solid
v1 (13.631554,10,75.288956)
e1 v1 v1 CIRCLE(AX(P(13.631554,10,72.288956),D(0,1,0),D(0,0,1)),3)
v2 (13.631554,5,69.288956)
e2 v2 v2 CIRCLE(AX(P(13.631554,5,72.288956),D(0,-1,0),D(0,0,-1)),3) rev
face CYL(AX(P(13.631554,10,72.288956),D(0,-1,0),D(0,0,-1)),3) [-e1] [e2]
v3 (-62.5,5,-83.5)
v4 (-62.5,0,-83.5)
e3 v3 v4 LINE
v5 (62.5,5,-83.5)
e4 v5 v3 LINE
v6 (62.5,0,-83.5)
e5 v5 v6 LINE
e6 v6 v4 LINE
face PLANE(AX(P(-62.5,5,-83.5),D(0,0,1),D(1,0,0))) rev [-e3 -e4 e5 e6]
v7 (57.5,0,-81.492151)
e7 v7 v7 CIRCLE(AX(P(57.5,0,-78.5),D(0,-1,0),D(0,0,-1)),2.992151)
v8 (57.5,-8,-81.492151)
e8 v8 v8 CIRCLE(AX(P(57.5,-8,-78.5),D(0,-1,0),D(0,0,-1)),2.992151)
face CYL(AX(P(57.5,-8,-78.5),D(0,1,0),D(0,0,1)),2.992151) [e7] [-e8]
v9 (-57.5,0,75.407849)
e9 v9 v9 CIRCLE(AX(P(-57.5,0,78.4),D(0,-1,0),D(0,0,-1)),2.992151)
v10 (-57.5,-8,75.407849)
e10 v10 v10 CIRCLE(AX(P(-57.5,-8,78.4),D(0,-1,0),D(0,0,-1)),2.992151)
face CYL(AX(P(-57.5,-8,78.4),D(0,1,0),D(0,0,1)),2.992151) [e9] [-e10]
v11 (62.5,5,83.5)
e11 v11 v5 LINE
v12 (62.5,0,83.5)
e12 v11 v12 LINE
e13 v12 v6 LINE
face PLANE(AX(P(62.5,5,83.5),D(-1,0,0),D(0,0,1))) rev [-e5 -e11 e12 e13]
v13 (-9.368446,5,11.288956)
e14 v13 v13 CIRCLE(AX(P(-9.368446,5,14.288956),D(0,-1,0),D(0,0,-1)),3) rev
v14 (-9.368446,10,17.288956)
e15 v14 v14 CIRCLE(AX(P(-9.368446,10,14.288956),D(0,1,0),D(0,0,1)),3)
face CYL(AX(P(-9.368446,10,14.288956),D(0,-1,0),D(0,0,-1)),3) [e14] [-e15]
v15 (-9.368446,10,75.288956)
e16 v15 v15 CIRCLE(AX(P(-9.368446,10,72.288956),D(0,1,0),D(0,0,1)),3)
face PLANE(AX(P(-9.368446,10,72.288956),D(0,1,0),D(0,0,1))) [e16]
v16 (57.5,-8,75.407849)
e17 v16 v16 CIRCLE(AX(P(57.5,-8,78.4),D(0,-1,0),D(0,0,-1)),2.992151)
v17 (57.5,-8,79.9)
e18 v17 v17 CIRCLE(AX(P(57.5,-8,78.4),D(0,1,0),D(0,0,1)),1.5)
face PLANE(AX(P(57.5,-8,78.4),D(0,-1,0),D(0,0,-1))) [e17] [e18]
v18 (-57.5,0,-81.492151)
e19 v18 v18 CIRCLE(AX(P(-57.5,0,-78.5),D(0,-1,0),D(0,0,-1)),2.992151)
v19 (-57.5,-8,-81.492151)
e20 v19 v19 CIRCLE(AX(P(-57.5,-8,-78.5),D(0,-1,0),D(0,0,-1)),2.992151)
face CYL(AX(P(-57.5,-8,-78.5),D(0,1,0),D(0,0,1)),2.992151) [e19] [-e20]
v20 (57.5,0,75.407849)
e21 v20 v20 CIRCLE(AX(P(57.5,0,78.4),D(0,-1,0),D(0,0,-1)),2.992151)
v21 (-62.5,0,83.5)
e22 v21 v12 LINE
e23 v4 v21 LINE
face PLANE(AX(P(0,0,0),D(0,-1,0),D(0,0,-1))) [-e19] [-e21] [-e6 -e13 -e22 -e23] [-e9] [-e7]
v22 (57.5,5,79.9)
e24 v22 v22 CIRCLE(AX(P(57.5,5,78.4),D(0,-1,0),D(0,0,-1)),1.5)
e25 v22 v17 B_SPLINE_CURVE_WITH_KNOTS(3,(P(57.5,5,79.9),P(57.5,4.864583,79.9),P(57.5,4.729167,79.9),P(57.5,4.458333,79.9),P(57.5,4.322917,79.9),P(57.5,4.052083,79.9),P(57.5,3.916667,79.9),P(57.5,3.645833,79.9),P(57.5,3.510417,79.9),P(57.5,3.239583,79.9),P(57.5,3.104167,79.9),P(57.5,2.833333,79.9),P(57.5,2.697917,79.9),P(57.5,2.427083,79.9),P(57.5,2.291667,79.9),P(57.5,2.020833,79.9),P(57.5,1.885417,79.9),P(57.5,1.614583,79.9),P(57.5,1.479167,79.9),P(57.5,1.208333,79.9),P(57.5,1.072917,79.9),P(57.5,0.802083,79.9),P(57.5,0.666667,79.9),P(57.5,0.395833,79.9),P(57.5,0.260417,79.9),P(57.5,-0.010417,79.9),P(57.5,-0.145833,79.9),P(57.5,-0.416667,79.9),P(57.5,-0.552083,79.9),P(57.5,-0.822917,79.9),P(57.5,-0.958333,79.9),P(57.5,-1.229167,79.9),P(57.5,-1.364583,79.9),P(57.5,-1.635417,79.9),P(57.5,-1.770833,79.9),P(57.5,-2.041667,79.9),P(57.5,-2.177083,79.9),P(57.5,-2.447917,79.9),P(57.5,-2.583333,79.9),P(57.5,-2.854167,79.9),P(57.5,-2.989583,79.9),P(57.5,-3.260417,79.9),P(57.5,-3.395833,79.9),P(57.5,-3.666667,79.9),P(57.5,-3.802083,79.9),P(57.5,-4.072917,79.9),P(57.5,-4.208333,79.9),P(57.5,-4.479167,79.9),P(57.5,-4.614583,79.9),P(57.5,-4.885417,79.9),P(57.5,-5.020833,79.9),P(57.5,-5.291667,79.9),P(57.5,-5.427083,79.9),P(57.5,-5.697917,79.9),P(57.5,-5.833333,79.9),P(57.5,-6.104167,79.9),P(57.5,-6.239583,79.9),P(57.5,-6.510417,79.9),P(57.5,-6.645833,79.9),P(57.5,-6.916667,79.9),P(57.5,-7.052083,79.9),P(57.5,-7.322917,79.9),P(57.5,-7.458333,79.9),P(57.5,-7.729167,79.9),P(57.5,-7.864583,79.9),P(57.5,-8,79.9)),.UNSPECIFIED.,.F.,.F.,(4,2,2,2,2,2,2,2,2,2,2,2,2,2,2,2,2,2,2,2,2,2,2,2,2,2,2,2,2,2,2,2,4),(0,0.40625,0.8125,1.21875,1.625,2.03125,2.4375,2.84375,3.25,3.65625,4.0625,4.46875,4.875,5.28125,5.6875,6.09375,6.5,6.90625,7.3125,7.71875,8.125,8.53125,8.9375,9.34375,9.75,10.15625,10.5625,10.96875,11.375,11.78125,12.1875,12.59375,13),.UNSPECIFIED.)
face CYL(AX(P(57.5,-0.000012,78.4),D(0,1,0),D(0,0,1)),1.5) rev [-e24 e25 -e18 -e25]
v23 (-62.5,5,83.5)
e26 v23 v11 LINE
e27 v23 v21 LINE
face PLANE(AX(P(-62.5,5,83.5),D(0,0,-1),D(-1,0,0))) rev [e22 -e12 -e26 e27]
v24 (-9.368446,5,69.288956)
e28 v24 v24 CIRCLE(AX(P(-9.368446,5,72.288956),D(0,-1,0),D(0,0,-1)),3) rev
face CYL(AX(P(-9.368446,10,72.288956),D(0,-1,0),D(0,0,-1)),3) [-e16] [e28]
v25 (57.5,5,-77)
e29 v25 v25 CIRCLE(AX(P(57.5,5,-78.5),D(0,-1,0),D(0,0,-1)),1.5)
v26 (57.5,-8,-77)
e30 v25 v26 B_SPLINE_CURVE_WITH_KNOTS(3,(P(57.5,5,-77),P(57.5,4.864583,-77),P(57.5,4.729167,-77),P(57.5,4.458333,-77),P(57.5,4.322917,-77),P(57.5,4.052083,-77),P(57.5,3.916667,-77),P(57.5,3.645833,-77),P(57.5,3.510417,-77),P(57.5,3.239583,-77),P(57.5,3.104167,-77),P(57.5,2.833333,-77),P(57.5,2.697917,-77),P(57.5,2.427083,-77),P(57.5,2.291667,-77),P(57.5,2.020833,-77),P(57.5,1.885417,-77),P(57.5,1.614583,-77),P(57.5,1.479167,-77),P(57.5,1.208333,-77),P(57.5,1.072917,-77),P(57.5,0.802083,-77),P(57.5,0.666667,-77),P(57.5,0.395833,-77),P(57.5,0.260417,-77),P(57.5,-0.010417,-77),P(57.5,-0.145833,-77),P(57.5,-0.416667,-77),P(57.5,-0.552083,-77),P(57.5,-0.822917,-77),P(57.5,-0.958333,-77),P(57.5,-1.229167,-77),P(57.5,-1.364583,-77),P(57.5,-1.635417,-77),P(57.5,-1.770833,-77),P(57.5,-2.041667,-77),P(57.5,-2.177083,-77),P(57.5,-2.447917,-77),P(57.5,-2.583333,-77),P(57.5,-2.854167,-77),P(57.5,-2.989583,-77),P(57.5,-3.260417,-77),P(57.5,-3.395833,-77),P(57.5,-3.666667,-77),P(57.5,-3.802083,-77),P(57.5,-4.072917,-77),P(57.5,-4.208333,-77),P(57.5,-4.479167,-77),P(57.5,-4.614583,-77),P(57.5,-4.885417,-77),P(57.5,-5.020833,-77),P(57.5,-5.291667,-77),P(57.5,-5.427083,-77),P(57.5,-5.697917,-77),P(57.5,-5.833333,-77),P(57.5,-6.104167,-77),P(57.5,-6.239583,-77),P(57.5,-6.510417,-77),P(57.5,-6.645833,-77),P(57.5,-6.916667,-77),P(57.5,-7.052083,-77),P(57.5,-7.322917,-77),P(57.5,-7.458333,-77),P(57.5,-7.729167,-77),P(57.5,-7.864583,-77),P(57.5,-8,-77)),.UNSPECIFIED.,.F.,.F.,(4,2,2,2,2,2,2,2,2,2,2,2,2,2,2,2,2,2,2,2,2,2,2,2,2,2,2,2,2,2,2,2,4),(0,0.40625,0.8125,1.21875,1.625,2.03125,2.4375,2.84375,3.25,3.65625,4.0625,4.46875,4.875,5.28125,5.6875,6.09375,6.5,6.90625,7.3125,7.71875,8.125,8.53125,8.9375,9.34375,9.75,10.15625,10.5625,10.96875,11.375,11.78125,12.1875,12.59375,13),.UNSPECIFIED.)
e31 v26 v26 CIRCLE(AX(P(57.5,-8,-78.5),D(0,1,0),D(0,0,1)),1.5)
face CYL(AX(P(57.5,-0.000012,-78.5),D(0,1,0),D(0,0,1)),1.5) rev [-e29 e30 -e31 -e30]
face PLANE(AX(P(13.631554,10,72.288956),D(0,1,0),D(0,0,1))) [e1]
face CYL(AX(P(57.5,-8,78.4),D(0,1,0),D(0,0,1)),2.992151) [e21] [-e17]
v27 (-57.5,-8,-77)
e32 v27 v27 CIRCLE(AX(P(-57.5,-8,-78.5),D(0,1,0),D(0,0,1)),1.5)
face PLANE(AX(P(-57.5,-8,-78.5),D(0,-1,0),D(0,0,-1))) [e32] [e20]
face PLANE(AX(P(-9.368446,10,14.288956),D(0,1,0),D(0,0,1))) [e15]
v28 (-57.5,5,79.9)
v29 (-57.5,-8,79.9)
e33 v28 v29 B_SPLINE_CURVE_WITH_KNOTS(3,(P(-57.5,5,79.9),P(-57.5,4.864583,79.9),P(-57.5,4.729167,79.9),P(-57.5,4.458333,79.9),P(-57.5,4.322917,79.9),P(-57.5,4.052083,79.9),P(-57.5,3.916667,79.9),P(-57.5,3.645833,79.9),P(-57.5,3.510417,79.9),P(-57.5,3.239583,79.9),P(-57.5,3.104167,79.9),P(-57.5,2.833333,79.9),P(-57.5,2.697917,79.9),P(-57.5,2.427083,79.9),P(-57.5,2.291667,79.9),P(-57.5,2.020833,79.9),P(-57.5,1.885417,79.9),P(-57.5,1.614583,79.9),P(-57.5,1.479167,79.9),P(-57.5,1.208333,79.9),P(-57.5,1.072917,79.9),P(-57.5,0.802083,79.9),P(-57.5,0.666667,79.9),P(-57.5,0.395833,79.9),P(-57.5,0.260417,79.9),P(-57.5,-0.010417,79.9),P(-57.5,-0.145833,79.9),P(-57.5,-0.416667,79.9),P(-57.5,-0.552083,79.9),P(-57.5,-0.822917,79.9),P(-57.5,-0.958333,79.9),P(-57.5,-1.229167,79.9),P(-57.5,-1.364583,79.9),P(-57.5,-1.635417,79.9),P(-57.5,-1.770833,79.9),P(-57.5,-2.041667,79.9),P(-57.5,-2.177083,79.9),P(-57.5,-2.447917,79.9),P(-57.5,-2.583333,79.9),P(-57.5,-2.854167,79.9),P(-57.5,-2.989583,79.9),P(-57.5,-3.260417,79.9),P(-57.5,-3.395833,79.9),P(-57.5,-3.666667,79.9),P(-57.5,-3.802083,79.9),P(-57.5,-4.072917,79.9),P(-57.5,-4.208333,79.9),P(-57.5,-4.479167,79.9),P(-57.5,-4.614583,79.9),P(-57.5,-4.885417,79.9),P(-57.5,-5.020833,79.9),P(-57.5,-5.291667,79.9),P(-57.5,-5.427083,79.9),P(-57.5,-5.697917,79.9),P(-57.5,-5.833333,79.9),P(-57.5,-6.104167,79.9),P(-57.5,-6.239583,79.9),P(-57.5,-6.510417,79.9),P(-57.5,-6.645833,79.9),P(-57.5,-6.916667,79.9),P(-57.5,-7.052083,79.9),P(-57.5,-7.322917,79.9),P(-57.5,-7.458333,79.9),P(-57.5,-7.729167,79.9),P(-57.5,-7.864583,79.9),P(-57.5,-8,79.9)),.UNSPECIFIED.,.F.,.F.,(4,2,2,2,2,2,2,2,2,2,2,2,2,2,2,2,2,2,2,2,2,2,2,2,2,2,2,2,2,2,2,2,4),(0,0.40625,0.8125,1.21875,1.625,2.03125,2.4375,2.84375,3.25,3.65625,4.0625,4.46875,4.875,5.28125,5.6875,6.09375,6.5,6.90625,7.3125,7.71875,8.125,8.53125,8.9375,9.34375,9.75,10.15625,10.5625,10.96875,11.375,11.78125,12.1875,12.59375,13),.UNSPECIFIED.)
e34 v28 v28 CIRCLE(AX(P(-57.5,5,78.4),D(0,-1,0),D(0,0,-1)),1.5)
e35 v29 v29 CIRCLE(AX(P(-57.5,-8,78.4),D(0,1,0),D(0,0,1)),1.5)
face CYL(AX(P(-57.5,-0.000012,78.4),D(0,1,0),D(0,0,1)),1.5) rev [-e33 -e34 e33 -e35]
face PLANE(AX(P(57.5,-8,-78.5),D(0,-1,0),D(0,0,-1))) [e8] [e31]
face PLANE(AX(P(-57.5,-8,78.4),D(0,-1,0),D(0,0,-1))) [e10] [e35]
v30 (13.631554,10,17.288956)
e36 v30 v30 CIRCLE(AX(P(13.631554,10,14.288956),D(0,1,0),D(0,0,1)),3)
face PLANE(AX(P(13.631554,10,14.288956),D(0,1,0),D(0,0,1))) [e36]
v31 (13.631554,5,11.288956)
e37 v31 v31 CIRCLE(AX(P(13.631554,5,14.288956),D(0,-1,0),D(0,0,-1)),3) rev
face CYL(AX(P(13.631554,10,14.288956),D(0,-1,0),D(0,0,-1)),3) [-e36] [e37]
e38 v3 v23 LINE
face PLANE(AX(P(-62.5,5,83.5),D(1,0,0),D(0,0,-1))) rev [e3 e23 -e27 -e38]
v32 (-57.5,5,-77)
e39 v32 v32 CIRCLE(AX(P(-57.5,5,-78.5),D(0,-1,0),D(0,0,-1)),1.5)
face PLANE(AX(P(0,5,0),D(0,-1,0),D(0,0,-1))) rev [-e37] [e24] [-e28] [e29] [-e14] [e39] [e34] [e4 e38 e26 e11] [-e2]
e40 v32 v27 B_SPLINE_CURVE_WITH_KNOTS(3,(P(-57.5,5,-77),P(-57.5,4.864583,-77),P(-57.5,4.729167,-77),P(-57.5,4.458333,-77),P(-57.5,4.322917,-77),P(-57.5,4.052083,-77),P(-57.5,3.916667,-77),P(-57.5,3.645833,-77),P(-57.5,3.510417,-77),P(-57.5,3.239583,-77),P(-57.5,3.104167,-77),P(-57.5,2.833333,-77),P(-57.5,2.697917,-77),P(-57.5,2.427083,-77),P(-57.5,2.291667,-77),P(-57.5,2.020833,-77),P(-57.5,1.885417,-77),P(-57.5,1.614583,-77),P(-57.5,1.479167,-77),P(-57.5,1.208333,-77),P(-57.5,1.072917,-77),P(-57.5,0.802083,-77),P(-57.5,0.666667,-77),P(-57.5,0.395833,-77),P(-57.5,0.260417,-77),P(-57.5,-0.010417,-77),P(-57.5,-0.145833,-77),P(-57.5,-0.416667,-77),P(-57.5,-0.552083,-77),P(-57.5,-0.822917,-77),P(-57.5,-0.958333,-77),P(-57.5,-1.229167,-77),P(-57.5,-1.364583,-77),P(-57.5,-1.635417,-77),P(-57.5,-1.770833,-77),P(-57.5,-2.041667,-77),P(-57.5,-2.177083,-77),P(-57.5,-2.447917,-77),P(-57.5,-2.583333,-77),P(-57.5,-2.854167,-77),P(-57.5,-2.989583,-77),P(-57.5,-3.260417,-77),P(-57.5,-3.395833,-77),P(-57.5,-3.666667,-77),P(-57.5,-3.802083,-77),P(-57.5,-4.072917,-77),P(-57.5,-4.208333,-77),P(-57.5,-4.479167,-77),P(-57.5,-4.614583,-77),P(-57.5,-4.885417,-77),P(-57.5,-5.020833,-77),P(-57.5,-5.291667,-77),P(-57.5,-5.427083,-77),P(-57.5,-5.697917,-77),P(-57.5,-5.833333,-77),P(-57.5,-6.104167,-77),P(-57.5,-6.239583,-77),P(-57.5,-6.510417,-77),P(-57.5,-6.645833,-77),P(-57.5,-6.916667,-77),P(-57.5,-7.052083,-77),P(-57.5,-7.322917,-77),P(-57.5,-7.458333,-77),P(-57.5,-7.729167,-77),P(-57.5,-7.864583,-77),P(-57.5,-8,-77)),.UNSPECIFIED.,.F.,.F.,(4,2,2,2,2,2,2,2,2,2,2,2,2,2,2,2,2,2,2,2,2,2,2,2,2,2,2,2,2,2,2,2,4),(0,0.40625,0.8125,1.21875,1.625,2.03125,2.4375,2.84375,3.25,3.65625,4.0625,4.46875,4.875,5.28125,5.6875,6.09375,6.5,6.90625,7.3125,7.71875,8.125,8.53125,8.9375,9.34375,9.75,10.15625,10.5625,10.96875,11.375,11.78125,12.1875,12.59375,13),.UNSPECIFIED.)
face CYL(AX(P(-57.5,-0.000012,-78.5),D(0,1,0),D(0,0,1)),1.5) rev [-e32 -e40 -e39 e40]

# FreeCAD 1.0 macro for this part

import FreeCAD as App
import Part
import Sketcher
Q = App.Units.Quantity

doc = App.newDocument("Part")
params = doc.addObject("Spreadsheet::Sheet", "Params")
for row, (alias, value) in enumerate([
    ("sketch1_width", "125 mm"),
    ("sketch1_height", "167 mm"),
    ("pad1_length", "5 mm"),
    ("sketch2_diameter", "3 mm"),
    ("pad2_length", "8 mm"),
    ("sketch4_diameter", "3 mm"),
    ("sketch5_diameter", "6 mm"),
    ("pad3_length", "5 mm"),
], start=1):
    params.set(f"A{row}", alias)
    params.set(f"B{row}", "=" + value)
    params.setAlias(f"B{row}", alias)

body = doc.addObject("PartDesign::Body", "Body")

sketch1 = body.newObject("Sketcher::SketchObject", "Sketch")
sketch1.AttachmentSupport = (doc.getObject("XZ_Plane"), [""])
sketch1.MapMode = "FlatFace"
sketch1.addGeometry(Part.LineSegment(App.Vector(-62, -84, 0), App.Vector(-62, 84, 0)), False)
sketch1.addGeometry(Part.LineSegment(App.Vector(-62, 84, 0), App.Vector(62, 84, 0)), False)
sketch1.addGeometry(Part.LineSegment(App.Vector(62, 84, 0), App.Vector(62, -84, 0)), False)
sketch1.addGeometry(Part.LineSegment(App.Vector(62, -84, 0), App.Vector(-62, -84, 0)), False)
sketch1.addConstraint(Sketcher.Constraint("Coincident", 0, 2, 1, 1))
sketch1.addConstraint(Sketcher.Constraint("Coincident", 1, 2, 2, 1))
sketch1.addConstraint(Sketcher.Constraint("Coincident", 2, 2, 3, 1))
sketch1.addConstraint(Sketcher.Constraint("Coincident", 3, 2, 0, 1))
sketch1.addConstraint(Sketcher.Constraint("Vertical", 0))
sketch1.addConstraint(Sketcher.Constraint("Horizontal", 1))
sketch1.addConstraint(Sketcher.Constraint("Vertical", 2))
sketch1.addConstraint(Sketcher.Constraint("Horizontal", 3))
sketch1.addConstraint(Sketcher.Constraint("Symmetric", 0, 2, 2, 2, -1, 1))
sketch1.addConstraint(Sketcher.Constraint("DistanceX", 1, 1, 1, 2, Q("125 mm")))
sketch1.addConstraint(Sketcher.Constraint("DistanceY", 0, 1, 0, 2, Q("167 mm")))
sketch1.setExpression("Constraints[9]", "Params.sketch1_width")
sketch1.setExpression("Constraints[10]", "Params.sketch1_height")
pad1 = body.newObject("PartDesign::Pad", "Pad")
pad1.Profile = sketch1
pad1.setExpression("Length", "Params.pad1_length")
pad1.Reversed = True

sketch2 = body.newObject("Sketcher::SketchObject", "Sketch001")
sketch2.AttachmentSupport = (doc.getObject("XZ_Plane"), [""])
sketch2.MapMode = "FlatFace"
sketch2.addGeometry(Part.Circle(App.Vector(-57.5, 78.4, 0), App.Vector(0, 0, 1), 1.5), False)
sketch2.addGeometry(Part.Circle(App.Vector(57.5, 78.4, 0), App.Vector(0, 0, 1), 1.5), False)
sketch2.addGeometry(Part.Circle(App.Vector(57.5, -78.5, 0), App.Vector(0, 0, 1), 1.5), False)
sketch2.addGeometry(Part.Circle(App.Vector(-57.5, -78.5, 0), App.Vector(0, 0, 1), 1.5), False)
sketch2.addConstraint(Sketcher.Constraint("Equal", 0, 1))
sketch2.addConstraint(Sketcher.Constraint("Equal", 1, 2))
sketch2.addConstraint(Sketcher.Constraint("Equal", 2, 3))
sketch2.addConstraint(Sketcher.Constraint("Symmetric", 0, 3, 1, 3, -2))
sketch2.addConstraint(Sketcher.Constraint("Symmetric", 2, 3, 3, 3, -2))
sketch2.addConstraint(Sketcher.Constraint("Vertical", 1, 3, 2, 3))
sketch2.addConstraint(Sketcher.Constraint("Diameter", 0, Q("3 mm")))
sketch2.addConstraint(Sketcher.Constraint("DistanceX", 0, 3, 1, 3, Q("115 mm")))
sketch2.addConstraint(Sketcher.Constraint("DistanceY", -1, 1, 0, 3, Q("78.4 mm")))
sketch2.addConstraint(Sketcher.Constraint("DistanceY", 2, 3, -1, 1, Q("78.5 mm")))
sketch2.setExpression("Constraints[6]", "Params.sketch2_diameter")
pocket1 = body.newObject("PartDesign::Pocket", "Pocket")
pocket1.Profile = sketch2
pocket1.Type = "ThroughAll"
pocket1.Midplane = True

sketch3 = body.newObject("Sketcher::SketchObject", "Sketch002")
sketch3.AttachmentSupport = (doc.getObject("XZ_Plane"), [""])
sketch3.MapMode = "FlatFace"
sketch3.addGeometry(Part.Circle(App.Vector(-57.5, 78.4, 0), App.Vector(0, 0, 1), 3), False)
sketch3.addGeometry(Part.Circle(App.Vector(57.5, 78.4, 0), App.Vector(0, 0, 1), 3), False)
sketch3.addGeometry(Part.Circle(App.Vector(57.5, -78.5, 0), App.Vector(0, 0, 1), 3), False)
sketch3.addGeometry(Part.Circle(App.Vector(-57.5, -78.5, 0), App.Vector(0, 0, 1), 3), False)
sketch3.addConstraint(Sketcher.Constraint("Equal", 0, 1))
sketch3.addConstraint(Sketcher.Constraint("Equal", 1, 2))
sketch3.addConstraint(Sketcher.Constraint("Equal", 2, 3))
sketch3.addConstraint(Sketcher.Constraint("Symmetric", 0, 3, 1, 3, -2))
sketch3.addConstraint(Sketcher.Constraint("Symmetric", 2, 3, 3, 3, -2))
sketch3.addConstraint(Sketcher.Constraint("Vertical", 1, 3, 2, 3))
sketch3.addConstraint(Sketcher.Constraint("DistanceX", 0, 3, 1, 3, Q("115 mm")))
sketch3.addConstraint(Sketcher.Constraint("DistanceY", -1, 1, 0, 3, Q("78.4 mm")))
sketch3.addConstraint(Sketcher.Constraint("DistanceY", 2, 3, -1, 1, Q("78.5 mm")))
sketch3.addConstraint(Sketcher.Constraint("Diameter", 0, Q("5.984303 mm")))
pad2 = body.newObject("PartDesign::Pad", "Pad001")
pad2.Profile = sketch3
pad2.setExpression("Length", "Params.pad2_length")

sketch4 = body.newObject("Sketcher::SketchObject", "Sketch003")
sketch4.AttachmentSupport = (doc.getObject("XZ_Plane"), [""])
sketch4.MapMode = "FlatFace"
sketch4.AttachmentOffset = App.Placement(App.Vector(0, 0, -5), App.Rotation())
sketch4.addGeometry(Part.Circle(App.Vector(-57.5, -78.5, 0), App.Vector(0, 0, 1), 1.5), False)
sketch4.addGeometry(Part.Circle(App.Vector(57.5, -78.5, 0), App.Vector(0, 0, 1), 1.5), False)
sketch4.addGeometry(Part.Circle(App.Vector(57.5, 78.4, 0), App.Vector(0, 0, 1), 1.5), False)
sketch4.addGeometry(Part.Circle(App.Vector(-57.5, 78.4, 0), App.Vector(0, 0, 1), 1.5), False)
sketch4.addConstraint(Sketcher.Constraint("Equal", 0, 1))
sketch4.addConstraint(Sketcher.Constraint("Equal", 1, 2))
sketch4.addConstraint(Sketcher.Constraint("Equal", 2, 3))
sketch4.addConstraint(Sketcher.Constraint("Symmetric", 0, 3, 1, 3, -2))
sketch4.addConstraint(Sketcher.Constraint("Symmetric", 2, 3, 3, 3, -2))
sketch4.addConstraint(Sketcher.Constraint("Vertical", 1, 3, 2, 3))
sketch4.addConstraint(Sketcher.Constraint("Diameter", 0, Q("3 mm")))
sketch4.addConstraint(Sketcher.Constraint("DistanceX", 0, 3, 1, 3, Q("115 mm")))
sketch4.addConstraint(Sketcher.Constraint("DistanceY", 0, 3, -1, 1, Q("78.5 mm")))
sketch4.addConstraint(Sketcher.Constraint("DistanceY", -1, 1, 2, 3, Q("78.4 mm")))
sketch4.setExpression("Constraints[6]", "Params.sketch4_diameter")
pocket2 = body.newObject("PartDesign::Pocket", "Pocket001")
pocket2.Profile = sketch4
pocket2.Type = "ThroughAll"
pocket2.Reversed = True

sketch5 = body.newObject("Sketcher::SketchObject", "Sketch004")
sketch5.AttachmentSupport = (doc.getObject("XZ_Plane"), [""])
sketch5.MapMode = "FlatFace"
sketch5.AttachmentOffset = App.Placement(App.Vector(0, 0, -5), App.Rotation())
sketch5.addGeometry(Part.Circle(App.Vector(-9.4, 72.3, 0), App.Vector(0, 0, 1), 3), False)
sketch5.addGeometry(Part.Circle(App.Vector(-9.4, 14.3, 0), App.Vector(0, 0, 1), 3), False)
sketch5.addGeometry(Part.Circle(App.Vector(13.6, 14.3, 0), App.Vector(0, 0, 1), 3), False)
sketch5.addGeometry(Part.Circle(App.Vector(13.6, 72.3, 0), App.Vector(0, 0, 1), 3), False)
sketch5.addConstraint(Sketcher.Constraint("Equal", 0, 1))
sketch5.addConstraint(Sketcher.Constraint("Equal", 1, 2))
sketch5.addConstraint(Sketcher.Constraint("Equal", 2, 3))
sketch5.addConstraint(Sketcher.Constraint("Horizontal", 1, 3, 2, 3))
sketch5.addConstraint(Sketcher.Constraint("Horizontal", 0, 3, 3, 3))
sketch5.addConstraint(Sketcher.Constraint("Vertical", 0, 3, 1, 3))
sketch5.addConstraint(Sketcher.Constraint("Vertical", 2, 3, 3, 3))
sketch5.addConstraint(Sketcher.Constraint("Diameter", 0, Q("6 mm")))
sketch5.addConstraint(Sketcher.Constraint("DistanceY", 1, 3, 0, 3, Q("58 mm")))
sketch5.addConstraint(Sketcher.Constraint("DistanceX", 1, 3, 2, 3, Q("23 mm")))
sketch5.addConstraint(Sketcher.Constraint("DistanceX", 0, 3, -1, 1, Q("9.368446 mm")))
sketch5.addConstraint(Sketcher.Constraint("DistanceY", -1, 1, 0, 3, Q("72.288956 mm")))
sketch5.setExpression("Constraints[7]", "Params.sketch5_diameter")
pad3 = body.newObject("PartDesign::Pad", "Pad002")
pad3.Profile = sketch5
pad3.setExpression("Length", "Params.pad3_length")
pad3.Reversed = True

doc.recompute()
